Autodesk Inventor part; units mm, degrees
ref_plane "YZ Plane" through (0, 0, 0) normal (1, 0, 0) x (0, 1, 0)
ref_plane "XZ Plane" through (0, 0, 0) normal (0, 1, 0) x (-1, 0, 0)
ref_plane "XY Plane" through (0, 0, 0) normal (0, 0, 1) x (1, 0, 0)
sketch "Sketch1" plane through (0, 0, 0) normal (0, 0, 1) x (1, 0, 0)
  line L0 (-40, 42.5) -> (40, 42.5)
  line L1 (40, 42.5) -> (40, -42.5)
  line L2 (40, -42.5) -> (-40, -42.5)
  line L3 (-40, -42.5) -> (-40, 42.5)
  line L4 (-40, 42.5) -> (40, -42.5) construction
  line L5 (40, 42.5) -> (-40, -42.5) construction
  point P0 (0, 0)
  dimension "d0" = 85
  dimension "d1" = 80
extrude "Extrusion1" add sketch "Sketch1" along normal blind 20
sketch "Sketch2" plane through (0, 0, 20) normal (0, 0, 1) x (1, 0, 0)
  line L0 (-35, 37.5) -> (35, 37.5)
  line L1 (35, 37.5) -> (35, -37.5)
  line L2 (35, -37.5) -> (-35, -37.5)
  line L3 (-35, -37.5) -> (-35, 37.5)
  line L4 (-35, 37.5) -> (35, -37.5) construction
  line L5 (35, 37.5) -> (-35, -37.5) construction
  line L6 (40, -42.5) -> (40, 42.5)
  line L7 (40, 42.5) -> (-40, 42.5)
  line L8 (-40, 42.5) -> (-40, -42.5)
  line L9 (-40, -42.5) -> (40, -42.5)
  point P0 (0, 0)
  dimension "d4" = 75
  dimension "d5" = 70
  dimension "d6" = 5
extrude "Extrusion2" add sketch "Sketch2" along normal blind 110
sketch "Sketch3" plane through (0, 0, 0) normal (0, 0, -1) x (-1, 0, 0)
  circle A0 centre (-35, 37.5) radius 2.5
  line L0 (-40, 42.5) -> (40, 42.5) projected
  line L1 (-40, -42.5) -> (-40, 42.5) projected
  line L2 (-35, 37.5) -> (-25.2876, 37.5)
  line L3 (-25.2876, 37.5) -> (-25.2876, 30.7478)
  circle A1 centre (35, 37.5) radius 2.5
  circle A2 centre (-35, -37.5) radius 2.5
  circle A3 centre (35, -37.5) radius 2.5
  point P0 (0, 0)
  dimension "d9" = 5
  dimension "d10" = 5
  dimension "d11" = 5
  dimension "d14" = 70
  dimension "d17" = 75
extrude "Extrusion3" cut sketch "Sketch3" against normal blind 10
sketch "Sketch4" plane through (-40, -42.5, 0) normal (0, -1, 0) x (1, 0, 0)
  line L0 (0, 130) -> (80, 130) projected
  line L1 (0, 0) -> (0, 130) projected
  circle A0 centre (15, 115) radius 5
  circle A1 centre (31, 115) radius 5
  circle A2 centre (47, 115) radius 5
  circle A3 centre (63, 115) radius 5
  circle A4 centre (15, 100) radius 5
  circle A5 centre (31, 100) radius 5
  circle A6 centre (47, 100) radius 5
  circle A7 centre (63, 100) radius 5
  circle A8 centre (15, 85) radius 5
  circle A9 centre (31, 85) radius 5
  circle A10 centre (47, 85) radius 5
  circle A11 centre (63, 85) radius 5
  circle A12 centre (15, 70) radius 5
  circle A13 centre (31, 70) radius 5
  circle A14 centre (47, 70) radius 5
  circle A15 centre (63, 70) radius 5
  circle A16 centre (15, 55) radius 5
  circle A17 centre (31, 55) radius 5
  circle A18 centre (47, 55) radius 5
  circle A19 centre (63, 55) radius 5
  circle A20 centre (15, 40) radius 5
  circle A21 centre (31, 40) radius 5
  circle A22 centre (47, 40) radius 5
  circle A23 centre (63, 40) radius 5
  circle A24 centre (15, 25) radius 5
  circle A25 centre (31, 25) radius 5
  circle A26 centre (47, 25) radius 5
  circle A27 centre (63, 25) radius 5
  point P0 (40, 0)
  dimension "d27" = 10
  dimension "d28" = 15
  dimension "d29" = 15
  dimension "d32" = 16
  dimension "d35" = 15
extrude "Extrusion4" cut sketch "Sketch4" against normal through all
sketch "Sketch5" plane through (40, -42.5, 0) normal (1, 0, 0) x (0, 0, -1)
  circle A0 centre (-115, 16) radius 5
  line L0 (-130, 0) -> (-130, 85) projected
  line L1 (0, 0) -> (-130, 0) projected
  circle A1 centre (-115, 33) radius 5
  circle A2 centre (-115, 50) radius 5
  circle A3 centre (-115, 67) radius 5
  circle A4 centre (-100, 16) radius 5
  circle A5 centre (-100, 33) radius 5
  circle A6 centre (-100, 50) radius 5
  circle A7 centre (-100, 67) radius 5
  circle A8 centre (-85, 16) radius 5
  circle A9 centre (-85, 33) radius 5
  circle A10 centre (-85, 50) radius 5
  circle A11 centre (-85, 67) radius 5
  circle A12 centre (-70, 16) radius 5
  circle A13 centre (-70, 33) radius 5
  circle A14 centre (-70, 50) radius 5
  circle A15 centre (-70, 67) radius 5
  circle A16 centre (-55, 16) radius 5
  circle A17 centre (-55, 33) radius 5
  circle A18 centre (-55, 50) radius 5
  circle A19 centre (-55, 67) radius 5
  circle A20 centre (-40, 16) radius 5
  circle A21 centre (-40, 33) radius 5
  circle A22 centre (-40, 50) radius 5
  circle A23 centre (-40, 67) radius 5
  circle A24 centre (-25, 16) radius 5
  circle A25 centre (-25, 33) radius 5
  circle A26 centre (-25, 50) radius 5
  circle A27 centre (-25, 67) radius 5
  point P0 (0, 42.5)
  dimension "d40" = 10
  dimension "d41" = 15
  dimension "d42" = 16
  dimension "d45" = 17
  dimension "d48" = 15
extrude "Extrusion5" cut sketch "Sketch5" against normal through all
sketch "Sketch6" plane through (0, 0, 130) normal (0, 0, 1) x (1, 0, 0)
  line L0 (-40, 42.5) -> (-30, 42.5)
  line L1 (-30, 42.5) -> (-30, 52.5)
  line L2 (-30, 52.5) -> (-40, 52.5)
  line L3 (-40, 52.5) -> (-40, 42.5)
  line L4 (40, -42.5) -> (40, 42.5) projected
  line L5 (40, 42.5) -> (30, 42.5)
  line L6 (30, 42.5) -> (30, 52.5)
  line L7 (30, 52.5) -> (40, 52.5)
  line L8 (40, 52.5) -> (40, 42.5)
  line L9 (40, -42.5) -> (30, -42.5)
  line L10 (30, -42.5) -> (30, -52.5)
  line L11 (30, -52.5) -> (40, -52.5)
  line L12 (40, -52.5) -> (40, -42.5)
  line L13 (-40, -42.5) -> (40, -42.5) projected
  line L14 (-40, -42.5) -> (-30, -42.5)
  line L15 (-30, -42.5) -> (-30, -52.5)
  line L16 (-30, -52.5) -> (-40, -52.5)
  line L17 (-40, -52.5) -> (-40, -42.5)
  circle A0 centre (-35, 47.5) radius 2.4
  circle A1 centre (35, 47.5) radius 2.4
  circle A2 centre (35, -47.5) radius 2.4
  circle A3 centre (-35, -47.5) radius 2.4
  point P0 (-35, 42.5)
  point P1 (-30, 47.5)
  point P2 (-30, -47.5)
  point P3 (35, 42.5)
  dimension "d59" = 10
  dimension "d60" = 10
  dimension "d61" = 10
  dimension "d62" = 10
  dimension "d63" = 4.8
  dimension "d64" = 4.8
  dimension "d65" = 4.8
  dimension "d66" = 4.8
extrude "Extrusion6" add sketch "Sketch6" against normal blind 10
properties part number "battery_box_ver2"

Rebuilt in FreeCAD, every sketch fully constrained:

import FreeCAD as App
import Part
import Sketcher


def add_polygon(sketch, points):
    """Adds a closed chain of lines whose ends are joined by coincident constraints."""
    first, n = sketch.GeometryCount, len(points)
    for a, b in zip(points, points[1:] + points[:1]):
        sketch.addGeometry(Part.LineSegment(App.Vector(*a, 0), App.Vector(*b, 0)), False)
    for i in range(n):
        sketch.addConstraint(Sketcher.Constraint("Coincident", first + i, 2, first + (i + 1) % n, 1))

doc = App.newDocument("Part")
body = doc.addObject("PartDesign::Body", "Body")

# Sketch on XY plane
sketch1 = body.newObject("Sketcher::SketchObject", "Sketch")
sketch1.AttachmentSupport = (doc.getObject("XY_Plane"), [""])
sketch1.MapMode = "FlatFace"
add_polygon(sketch1, [(40, 42), (-40, 42), (-40, -42), (40, -42)])  # lines 0-3
sketch1.addConstraint(Sketcher.Constraint("Horizontal", 0))
sketch1.addConstraint(Sketcher.Constraint("Vertical", 1))
sketch1.addConstraint(Sketcher.Constraint("Horizontal", 2))
sketch1.addConstraint(Sketcher.Constraint("Vertical", 3))
sketch1.addConstraint(Sketcher.Constraint("Symmetric", 0, 2, 2, 2, -1, 1))
sketch1.addConstraint(Sketcher.Constraint("DistanceX", 0, 2, 0, 1, 80.0))
sketch1.addConstraint(Sketcher.Constraint("DistanceY", 1, 2, 1, 1, 85.0))
pad1 = body.newObject("PartDesign::Pad", "Pad")
pad1.Profile = sketch1
pad1.Length = 20

# Sketch on XY plane
sketch2 = body.newObject("Sketcher::SketchObject", "Sketch001")
sketch2.AttachmentSupport = (doc.getObject("XY_Plane"), [""])
sketch2.MapMode = "FlatFace"
sketch2.AttachmentOffset = App.Placement(App.Vector(0, 0, 20), App.Rotation())
add_polygon(sketch2, [(-40, -42), (40, -42), (40, 42), (-40, 42)])  # lines 0-3
add_polygon(sketch2, [(-35, -38), (-35, 38), (35, 38), (35, -38)])  # lines 4-7
sketch2.addConstraint(Sketcher.Constraint("Horizontal", 0))
sketch2.addConstraint(Sketcher.Constraint("Vertical", 1))
sketch2.addConstraint(Sketcher.Constraint("Horizontal", 2))
sketch2.addConstraint(Sketcher.Constraint("Vertical", 3))
sketch2.addConstraint(Sketcher.Constraint("Vertical", 4))
sketch2.addConstraint(Sketcher.Constraint("Horizontal", 5))
sketch2.addConstraint(Sketcher.Constraint("Vertical", 6))
sketch2.addConstraint(Sketcher.Constraint("Horizontal", 7))
sketch2.addConstraint(Sketcher.Constraint("Symmetric", 0, 2, 2, 2, -1, 1))
sketch2.addConstraint(Sketcher.Constraint("Symmetric", 4, 2, 6, 2, -1, 1))
sketch2.addConstraint(Sketcher.Constraint("DistanceX", 5, 1, 5, 2, 70.0))
sketch2.addConstraint(Sketcher.Constraint("DistanceY", 4, 1, 4, 2, 75.0))
sketch2.addConstraint(Sketcher.Constraint("DistanceX", 2, 2, 4, 2, 5.0))
sketch2.addConstraint(Sketcher.Constraint("DistanceY", 4, 2, 2, 2, 5.0))
pad2 = body.newObject("PartDesign::Pad", "Pad001")
pad2.Profile = sketch2
pad2.Length = 110

# Sketch on XY plane
sketch3 = body.newObject("Sketcher::SketchObject", "Sketch002")
sketch3.AttachmentSupport = (doc.getObject("XY_Plane"), [""])
sketch3.MapMode = "FlatFace"
sketch3.addGeometry(Part.Circle(App.Vector(35, 37.5, 0), App.Vector(0, 0, 1), 2.5), False)
sketch3.addGeometry(Part.Circle(App.Vector(-35, 37.5, 0), App.Vector(0, 0, 1), 2.5), False)
sketch3.addGeometry(Part.Circle(App.Vector(35, -37.5, 0), App.Vector(0, 0, 1), 2.5), False)
sketch3.addGeometry(Part.Circle(App.Vector(-35, -37.5, 0), App.Vector(0, 0, 1), 2.5), False)
sketch3.addConstraint(Sketcher.Constraint("Equal", 0, 1))
sketch3.addConstraint(Sketcher.Constraint("Equal", 1, 2))
sketch3.addConstraint(Sketcher.Constraint("Equal", 2, 3))
sketch3.addConstraint(Sketcher.Constraint("Symmetric", 1, 3, 2, 3, -1, 1))
sketch3.addConstraint(Sketcher.Constraint("Symmetric", 0, 3, 3, 3, -1, 1))
sketch3.addConstraint(Sketcher.Constraint("Symmetric", 0, 3, 1, 3, -2))
sketch3.addConstraint(Sketcher.Constraint("Diameter", 0, 5.0))
sketch3.addConstraint(Sketcher.Constraint("DistanceX", 1, 3, 0, 3, 70.0))
sketch3.addConstraint(Sketcher.Constraint("DistanceY", 2, 3, 0, 3, 75.0))
pocket1 = body.newObject("PartDesign::Pocket", "Pocket")
pocket1.Profile = sketch3
pocket1.Length = 10
pocket1.Reversed = True

# Sketch on XZ plane
sketch4 = body.newObject("Sketcher::SketchObject", "Sketch003")
sketch4.AttachmentSupport = (doc.getObject("XZ_Plane"), [""])
sketch4.MapMode = "FlatFace"
sketch4.AttachmentOffset = App.Placement(App.Vector(0, 0, 42.5), App.Rotation())
sketch4.addGeometry(Part.Circle(App.Vector(-25, 115, 0), App.Vector(0, 0, 1), 5), False)
sketch4.addGeometry(Part.Circle(App.Vector(-9, 115, 0), App.Vector(0, 0, 1), 5), False)
sketch4.addGeometry(Part.Circle(App.Vector(7, 115, 0), App.Vector(0, 0, 1), 5), False)
sketch4.addGeometry(Part.Circle(App.Vector(23, 115, 0), App.Vector(0, 0, 1), 5), False)
sketch4.addGeometry(Part.Circle(App.Vector(-25, 100, 0), App.Vector(0, 0, 1), 5), False)
sketch4.addGeometry(Part.Circle(App.Vector(-9, 100, 0), App.Vector(0, 0, 1), 5), False)
sketch4.addGeometry(Part.Circle(App.Vector(7, 100, 0), App.Vector(0, 0, 1), 5), False)
sketch4.addGeometry(Part.Circle(App.Vector(23, 100, 0), App.Vector(0, 0, 1), 5), False)
sketch4.addGeometry(Part.Circle(App.Vector(-25, 85, 0), App.Vector(0, 0, 1), 5), False)
sketch4.addGeometry(Part.Circle(App.Vector(-9, 85, 0), App.Vector(0, 0, 1), 5), False)
sketch4.addGeometry(Part.Circle(App.Vector(7, 85, 0), App.Vector(0, 0, 1), 5), False)
sketch4.addGeometry(Part.Circle(App.Vector(23, 85, 0), App.Vector(0, 0, 1), 5), False)
sketch4.addGeometry(Part.Circle(App.Vector(-25, 70, 0), App.Vector(0, 0, 1), 5), False)
sketch4.addGeometry(Part.Circle(App.Vector(-9, 70, 0), App.Vector(0, 0, 1), 5), False)
sketch4.addGeometry(Part.Circle(App.Vector(7, 70, 0), App.Vector(0, 0, 1), 5), False)
sketch4.addGeometry(Part.Circle(App.Vector(23, 70, 0), App.Vector(0, 0, 1), 5), False)
sketch4.addGeometry(Part.Circle(App.Vector(-25, 55, 0), App.Vector(0, 0, 1), 5), False)
sketch4.addGeometry(Part.Circle(App.Vector(-9, 55, 0), App.Vector(0, 0, 1), 5), False)
sketch4.addGeometry(Part.Circle(App.Vector(7, 55, 0), App.Vector(0, 0, 1), 5), False)
sketch4.addGeometry(Part.Circle(App.Vector(23, 55, 0), App.Vector(0, 0, 1), 5), False)
sketch4.addGeometry(Part.Circle(App.Vector(-25, 40, 0), App.Vector(0, 0, 1), 5), False)
sketch4.addGeometry(Part.Circle(App.Vector(-9, 40, 0), App.Vector(0, 0, 1), 5), False)
sketch4.addGeometry(Part.Circle(App.Vector(7, 40, 0), App.Vector(0, 0, 1), 5), False)
sketch4.addGeometry(Part.Circle(App.Vector(23, 40, 0), App.Vector(0, 0, 1), 5), False)
sketch4.addGeometry(Part.Circle(App.Vector(-25, 25, 0), App.Vector(0, 0, 1), 5), False)
sketch4.addGeometry(Part.Circle(App.Vector(-9, 25, 0), App.Vector(0, 0, 1), 5), False)
sketch4.addGeometry(Part.Circle(App.Vector(7, 25, 0), App.Vector(0, 0, 1), 5), False)
sketch4.addGeometry(Part.Circle(App.Vector(23, 25, 0), App.Vector(0, 0, 1), 5), False)
sketch4.addConstraint(Sketcher.Constraint("Equal", 0, 1))
sketch4.addConstraint(Sketcher.Constraint("Equal", 1, 2))
sketch4.addConstraint(Sketcher.Constraint("Equal", 2, 3))
sketch4.addConstraint(Sketcher.Constraint("Equal", 3, 4))
sketch4.addConstraint(Sketcher.Constraint("Equal", 4, 5))
sketch4.addConstraint(Sketcher.Constraint("Equal", 5, 6))
sketch4.addConstraint(Sketcher.Constraint("Equal", 6, 7))
sketch4.addConstraint(Sketcher.Constraint("Equal", 7, 8))
sketch4.addConstraint(Sketcher.Constraint("Equal", 8, 9))
sketch4.addConstraint(Sketcher.Constraint("Equal", 9, 10))
sketch4.addConstraint(Sketcher.Constraint("Equal", 10, 11))
sketch4.addConstraint(Sketcher.Constraint("Equal", 11, 12))
sketch4.addConstraint(Sketcher.Constraint("Equal", 12, 13))
sketch4.addConstraint(Sketcher.Constraint("Equal", 13, 14))
sketch4.addConstraint(Sketcher.Constraint("Equal", 14, 15))
sketch4.addConstraint(Sketcher.Constraint("Equal", 15, 16))
sketch4.addConstraint(Sketcher.Constraint("Equal", 16, 17))
sketch4.addConstraint(Sketcher.Constraint("Equal", 17, 18))
sketch4.addConstraint(Sketcher.Constraint("Equal", 18, 19))
sketch4.addConstraint(Sketcher.Constraint("Equal", 19, 20))
sketch4.addConstraint(Sketcher.Constraint("Equal", 20, 21))
sketch4.addConstraint(Sketcher.Constraint("Equal", 21, 22))
sketch4.addConstraint(Sketcher.Constraint("Equal", 22, 23))
sketch4.addConstraint(Sketcher.Constraint("Equal", 23, 24))
sketch4.addConstraint(Sketcher.Constraint("Equal", 24, 25))
sketch4.addConstraint(Sketcher.Constraint("Equal", 25, 26))
sketch4.addConstraint(Sketcher.Constraint("Equal", 26, 27))
sketch4.addConstraint(Sketcher.Constraint("Horizontal", 0, 3, 1, 3))
sketch4.addConstraint(Sketcher.Constraint("Horizontal", 1, 3, 2, 3))
sketch4.addConstraint(Sketcher.Constraint("Horizontal", 2, 3, 3, 3))
sketch4.addConstraint(Sketcher.Constraint("Horizontal", 4, 3, 5, 3))
sketch4.addConstraint(Sketcher.Constraint("Horizontal", 5, 3, 6, 3))
sketch4.addConstraint(Sketcher.Constraint("Horizontal", 6, 3, 7, 3))
sketch4.addConstraint(Sketcher.Constraint("Horizontal", 8, 3, 9, 3))
sketch4.addConstraint(Sketcher.Constraint("Horizontal", 9, 3, 10, 3))
sketch4.addConstraint(Sketcher.Constraint("Horizontal", 10, 3, 11, 3))
sketch4.addConstraint(Sketcher.Constraint("Horizontal", 12, 3, 13, 3))
sketch4.addConstraint(Sketcher.Constraint("Horizontal", 13, 3, 14, 3))
sketch4.addConstraint(Sketcher.Constraint("Horizontal", 14, 3, 15, 3))
sketch4.addConstraint(Sketcher.Constraint("Horizontal", 16, 3, 17, 3))
sketch4.addConstraint(Sketcher.Constraint("Horizontal", 17, 3, 18, 3))
sketch4.addConstraint(Sketcher.Constraint("Horizontal", 18, 3, 19, 3))
sketch4.addConstraint(Sketcher.Constraint("Horizontal", 20, 3, 21, 3))
sketch4.addConstraint(Sketcher.Constraint("Horizontal", 21, 3, 22, 3))
sketch4.addConstraint(Sketcher.Constraint("Horizontal", 22, 3, 23, 3))
sketch4.addConstraint(Sketcher.Constraint("Horizontal", 24, 3, 25, 3))
sketch4.addConstraint(Sketcher.Constraint("Horizontal", 25, 3, 26, 3))
sketch4.addConstraint(Sketcher.Constraint("Horizontal", 26, 3, 27, 3))
sketch4.addConstraint(Sketcher.Constraint("Vertical", 0, 3, 4, 3))
sketch4.addConstraint(Sketcher.Constraint("Vertical", 1, 3, 5, 3))
sketch4.addConstraint(Sketcher.Constraint("Vertical", 2, 3, 6, 3))
sketch4.addConstraint(Sketcher.Constraint("Vertical", 3, 3, 7, 3))
sketch4.addConstraint(Sketcher.Constraint("Vertical", 4, 3, 8, 3))
sketch4.addConstraint(Sketcher.Constraint("Vertical", 5, 3, 9, 3))
sketch4.addConstraint(Sketcher.Constraint("Vertical", 6, 3, 10, 3))
sketch4.addConstraint(Sketcher.Constraint("Vertical", 7, 3, 11, 3))
sketch4.addConstraint(Sketcher.Constraint("Vertical", 8, 3, 12, 3))
sketch4.addConstraint(Sketcher.Constraint("Vertical", 9, 3, 13, 3))
sketch4.addConstraint(Sketcher.Constraint("Vertical", 10, 3, 14, 3))
sketch4.addConstraint(Sketcher.Constraint("Vertical", 11, 3, 15, 3))
sketch4.addConstraint(Sketcher.Constraint("Vertical", 12, 3, 16, 3))
sketch4.addConstraint(Sketcher.Constraint("Vertical", 13, 3, 17, 3))
sketch4.addConstraint(Sketcher.Constraint("Vertical", 14, 3, 18, 3))
sketch4.addConstraint(Sketcher.Constraint("Vertical", 15, 3, 19, 3))
sketch4.addConstraint(Sketcher.Constraint("Vertical", 16, 3, 20, 3))
sketch4.addConstraint(Sketcher.Constraint("Vertical", 17, 3, 21, 3))
sketch4.addConstraint(Sketcher.Constraint("Vertical", 18, 3, 22, 3))
sketch4.addConstraint(Sketcher.Constraint("Vertical", 19, 3, 23, 3))
sketch4.addConstraint(Sketcher.Constraint("Vertical", 20, 3, 24, 3))
sketch4.addConstraint(Sketcher.Constraint("Vertical", 21, 3, 25, 3))
sketch4.addConstraint(Sketcher.Constraint("Vertical", 22, 3, 26, 3))
sketch4.addConstraint(Sketcher.Constraint("Vertical", 23, 3, 27, 3))
sketch4.addConstraint(Sketcher.Constraint("Diameter", 0, 10.0))
sketch4.addConstraint(Sketcher.Constraint("DistanceX", 0, 3, 1, 3, 16.0))
sketch4.addConstraint(Sketcher.Constraint("DistanceX", 1, 3, 2, 3, 16.0))
sketch4.addConstraint(Sketcher.Constraint("DistanceX", 2, 3, 3, 3, 16.0))
sketch4.addConstraint(Sketcher.Constraint("DistanceY", 4, 3, 0, 3, 15.0))
sketch4.addConstraint(Sketcher.Constraint("DistanceY", 8, 3, 4, 3, 15.0))
sketch4.addConstraint(Sketcher.Constraint("DistanceY", 12, 3, 8, 3, 15.0))
sketch4.addConstraint(Sketcher.Constraint("DistanceY", 16, 3, 12, 3, 15.0))
sketch4.addConstraint(Sketcher.Constraint("DistanceY", 20, 3, 16, 3, 15.0))
sketch4.addConstraint(Sketcher.Constraint("DistanceY", 24, 3, 20, 3, 15.0))
sketch4.addConstraint(Sketcher.Constraint("DistanceX", 0, 3, -1, 1, 25.0))
sketch4.addConstraint(Sketcher.Constraint("DistanceY", -1, 1, 0, 3, 115.0))
pocket2 = body.newObject("PartDesign::Pocket", "Pocket001")
pocket2.Profile = sketch4
pocket2.Type = "ThroughAll"

# Sketch on YZ plane
sketch5 = body.newObject("Sketcher::SketchObject", "Sketch004")
sketch5.AttachmentSupport = (doc.getObject("YZ_Plane"), [""])
sketch5.MapMode = "FlatFace"
sketch5.AttachmentOffset = App.Placement(App.Vector(0, 0, 40), App.Rotation())
sketch5.addGeometry(Part.Circle(App.Vector(-26, 115, 0), App.Vector(0, 0, 1), 5), False)
sketch5.addGeometry(Part.Circle(App.Vector(-10, 115, 0), App.Vector(0, 0, 1), 5), False)
sketch5.addGeometry(Part.Circle(App.Vector(8, 115, 0), App.Vector(0, 0, 1), 5), False)
sketch5.addGeometry(Part.Circle(App.Vector(24, 115, 0), App.Vector(0, 0, 1), 5), False)
sketch5.addGeometry(Part.Circle(App.Vector(-26, 100, 0), App.Vector(0, 0, 1), 5), False)
sketch5.addGeometry(Part.Circle(App.Vector(-10, 100, 0), App.Vector(0, 0, 1), 5), False)
sketch5.addGeometry(Part.Circle(App.Vector(8, 100, 0), App.Vector(0, 0, 1), 5), False)
sketch5.addGeometry(Part.Circle(App.Vector(24, 100, 0), App.Vector(0, 0, 1), 5), False)
sketch5.addGeometry(Part.Circle(App.Vector(-26, 85, 0), App.Vector(0, 0, 1), 5), False)
sketch5.addGeometry(Part.Circle(App.Vector(-10, 85, 0), App.Vector(0, 0, 1), 5), False)
sketch5.addGeometry(Part.Circle(App.Vector(8, 85, 0), App.Vector(0, 0, 1), 5), False)
sketch5.addGeometry(Part.Circle(App.Vector(24, 85, 0), App.Vector(0, 0, 1), 5), False)
sketch5.addGeometry(Part.Circle(App.Vector(-26, 70, 0), App.Vector(0, 0, 1), 5), False)
sketch5.addGeometry(Part.Circle(App.Vector(-10, 70, 0), App.Vector(0, 0, 1), 5), False)
sketch5.addGeometry(Part.Circle(App.Vector(8, 70, 0), App.Vector(0, 0, 1), 5), False)
sketch5.addGeometry(Part.Circle(App.Vector(24, 70, 0), App.Vector(0, 0, 1), 5), False)
sketch5.addGeometry(Part.Circle(App.Vector(-26, 55, 0), App.Vector(0, 0, 1), 5), False)
sketch5.addGeometry(Part.Circle(App.Vector(-10, 55, 0), App.Vector(0, 0, 1), 5), False)
sketch5.addGeometry(Part.Circle(App.Vector(8, 55, 0), App.Vector(0, 0, 1), 5), False)
sketch5.addGeometry(Part.Circle(App.Vector(24, 55, 0), App.Vector(0, 0, 1), 5), False)
sketch5.addGeometry(Part.Circle(App.Vector(-26, 40, 0), App.Vector(0, 0, 1), 5), False)
sketch5.addGeometry(Part.Circle(App.Vector(-10, 40, 0), App.Vector(0, 0, 1), 5), False)
sketch5.addGeometry(Part.Circle(App.Vector(8, 40, 0), App.Vector(0, 0, 1), 5), False)
sketch5.addGeometry(Part.Circle(App.Vector(24, 40, 0), App.Vector(0, 0, 1), 5), False)
sketch5.addGeometry(Part.Circle(App.Vector(-26, 25, 0), App.Vector(0, 0, 1), 5), False)
sketch5.addGeometry(Part.Circle(App.Vector(-10, 25, 0), App.Vector(0, 0, 1), 5), False)
sketch5.addGeometry(Part.Circle(App.Vector(8, 25, 0), App.Vector(0, 0, 1), 5), False)
sketch5.addGeometry(Part.Circle(App.Vector(24, 25, 0), App.Vector(0, 0, 1), 5), False)
sketch5.addConstraint(Sketcher.Constraint("Equal", 0, 1))
sketch5.addConstraint(Sketcher.Constraint("Equal", 1, 2))
sketch5.addConstraint(Sketcher.Constraint("Equal", 2, 3))
sketch5.addConstraint(Sketcher.Constraint("Equal", 3, 4))
sketch5.addConstraint(Sketcher.Constraint("Equal", 4, 5))
sketch5.addConstraint(Sketcher.Constraint("Equal", 5, 6))
sketch5.addConstraint(Sketcher.Constraint("Equal", 6, 7))
sketch5.addConstraint(Sketcher.Constraint("Equal", 7, 8))
sketch5.addConstraint(Sketcher.Constraint("Equal", 8, 9))
sketch5.addConstraint(Sketcher.Constraint("Equal", 9, 10))
sketch5.addConstraint(Sketcher.Constraint("Equal", 10, 11))
sketch5.addConstraint(Sketcher.Constraint("Equal", 11, 12))
sketch5.addConstraint(Sketcher.Constraint("Equal", 12, 13))
sketch5.addConstraint(Sketcher.Constraint("Equal", 13, 14))
sketch5.addConstraint(Sketcher.Constraint("Equal", 14, 15))
sketch5.addConstraint(Sketcher.Constraint("Equal", 15, 16))
sketch5.addConstraint(Sketcher.Constraint("Equal", 16, 17))
sketch5.addConstraint(Sketcher.Constraint("Equal", 17, 18))
sketch5.addConstraint(Sketcher.Constraint("Equal", 18, 19))
sketch5.addConstraint(Sketcher.Constraint("Equal", 19, 20))
sketch5.addConstraint(Sketcher.Constraint("Equal", 20, 21))
sketch5.addConstraint(Sketcher.Constraint("Equal", 21, 22))
sketch5.addConstraint(Sketcher.Constraint("Equal", 22, 23))
sketch5.addConstraint(Sketcher.Constraint("Equal", 23, 24))
sketch5.addConstraint(Sketcher.Constraint("Equal", 24, 25))
sketch5.addConstraint(Sketcher.Constraint("Equal", 25, 26))
sketch5.addConstraint(Sketcher.Constraint("Equal", 26, 27))
sketch5.addConstraint(Sketcher.Constraint("Horizontal", 0, 3, 1, 3))
sketch5.addConstraint(Sketcher.Constraint("Horizontal", 1, 3, 2, 3))
sketch5.addConstraint(Sketcher.Constraint("Horizontal", 2, 3, 3, 3))
sketch5.addConstraint(Sketcher.Constraint("Horizontal", 4, 3, 5, 3))
sketch5.addConstraint(Sketcher.Constraint("Horizontal", 5, 3, 6, 3))
sketch5.addConstraint(Sketcher.Constraint("Horizontal", 6, 3, 7, 3))
sketch5.addConstraint(Sketcher.Constraint("Horizontal", 8, 3, 9, 3))
sketch5.addConstraint(Sketcher.Constraint("Horizontal", 9, 3, 10, 3))
sketch5.addConstraint(Sketcher.Constraint("Horizontal", 10, 3, 11, 3))
sketch5.addConstraint(Sketcher.Constraint("Horizontal", 12, 3, 13, 3))
sketch5.addConstraint(Sketcher.Constraint("Horizontal", 13, 3, 14, 3))
sketch5.addConstraint(Sketcher.Constraint("Horizontal", 14, 3, 15, 3))
sketch5.addConstraint(Sketcher.Constraint("Horizontal", 16, 3, 17, 3))
sketch5.addConstraint(Sketcher.Constraint("Horizontal", 17, 3, 18, 3))
sketch5.addConstraint(Sketcher.Constraint("Horizontal", 18, 3, 19, 3))
sketch5.addConstraint(Sketcher.Constraint("Horizontal", 20, 3, 21, 3))
sketch5.addConstraint(Sketcher.Constraint("Horizontal", 21, 3, 22, 3))
sketch5.addConstraint(Sketcher.Constraint("Horizontal", 22, 3, 23, 3))
sketch5.addConstraint(Sketcher.Constraint("Horizontal", 24, 3, 25, 3))
sketch5.addConstraint(Sketcher.Constraint("Horizontal", 25, 3, 26, 3))
sketch5.addConstraint(Sketcher.Constraint("Horizontal", 26, 3, 27, 3))
sketch5.addConstraint(Sketcher.Constraint("Vertical", 0, 3, 4, 3))
sketch5.addConstraint(Sketcher.Constraint("Vertical", 1, 3, 5, 3))
sketch5.addConstraint(Sketcher.Constraint("Vertical", 2, 3, 6, 3))
sketch5.addConstraint(Sketcher.Constraint("Vertical", 3, 3, 7, 3))
sketch5.addConstraint(Sketcher.Constraint("Vertical", 4, 3, 8, 3))
sketch5.addConstraint(Sketcher.Constraint("Vertical", 5, 3, 9, 3))
sketch5.addConstraint(Sketcher.Constraint("Vertical", 6, 3, 10, 3))
sketch5.addConstraint(Sketcher.Constraint("Vertical", 7, 3, 11, 3))
sketch5.addConstraint(Sketcher.Constraint("Vertical", 8, 3, 12, 3))
sketch5.addConstraint(Sketcher.Constraint("Vertical", 9, 3, 13, 3))
sketch5.addConstraint(Sketcher.Constraint("Vertical", 10, 3, 14, 3))
sketch5.addConstraint(Sketcher.Constraint("Vertical", 11, 3, 15, 3))
sketch5.addConstraint(Sketcher.Constraint("Vertical", 12, 3, 16, 3))
sketch5.addConstraint(Sketcher.Constraint("Vertical", 13, 3, 17, 3))
sketch5.addConstraint(Sketcher.Constraint("Vertical", 14, 3, 18, 3))
sketch5.addConstraint(Sketcher.Constraint("Vertical", 15, 3, 19, 3))
sketch5.addConstraint(Sketcher.Constraint("Vertical", 16, 3, 20, 3))
sketch5.addConstraint(Sketcher.Constraint("Vertical", 17, 3, 21, 3))
sketch5.addConstraint(Sketcher.Constraint("Vertical", 18, 3, 22, 3))
sketch5.addConstraint(Sketcher.Constraint("Vertical", 19, 3, 23, 3))
sketch5.addConstraint(Sketcher.Constraint("Vertical", 20, 3, 24, 3))
sketch5.addConstraint(Sketcher.Constraint("Vertical", 21, 3, 25, 3))
sketch5.addConstraint(Sketcher.Constraint("Vertical", 22, 3, 26, 3))
sketch5.addConstraint(Sketcher.Constraint("Vertical", 23, 3, 27, 3))
sketch5.addConstraint(Sketcher.Constraint("Diameter", 0, 10.0))
sketch5.addConstraint(Sketcher.Constraint("DistanceX", 0, 3, 1, 3, 17.0))
sketch5.addConstraint(Sketcher.Constraint("DistanceX", 1, 3, 2, 3, 17.0))
sketch5.addConstraint(Sketcher.Constraint("DistanceX", 2, 3, 3, 3, 17.0))
sketch5.addConstraint(Sketcher.Constraint("DistanceY", 4, 3, 0, 3, 15.0))
sketch5.addConstraint(Sketcher.Constraint("DistanceY", 8, 3, 4, 3, 15.0))
sketch5.addConstraint(Sketcher.Constraint("DistanceY", 12, 3, 8, 3, 15.0))
sketch5.addConstraint(Sketcher.Constraint("DistanceY", 16, 3, 12, 3, 15.0))
sketch5.addConstraint(Sketcher.Constraint("DistanceY", 20, 3, 16, 3, 15.0))
sketch5.addConstraint(Sketcher.Constraint("DistanceY", 24, 3, 20, 3, 15.0))
sketch5.addConstraint(Sketcher.Constraint("DistanceY", -1, 1, 0, 3, 115.0))
sketch5.addConstraint(Sketcher.Constraint("DistanceX", 0, 3, -1, 1, 26.5))
pocket3 = body.newObject("PartDesign::Pocket", "Pocket002")
pocket3.Profile = sketch5
pocket3.Type = "ThroughAll"

# Sketch on XY plane
sketch6 = body.newObject("Sketcher::SketchObject", "Sketch005")
sketch6.AttachmentSupport = (doc.getObject("XY_Plane"), [""])
sketch6.MapMode = "FlatFace"
sketch6.AttachmentOffset = App.Placement(App.Vector(0, 0, 130), App.Rotation())
add_polygon(sketch6, [(-40, 52.5), (-40, 42.5), (-30, 42.5), (-30, 52.5)])  # lines 0-3
sketch6.addGeometry(Part.Circle(App.Vector(-35, 47.5, 0), App.Vector(0, 0, 1), 2.4), False)  # 4
add_polygon(sketch6, [(30, 42.5), (40, 42.5), (40, 52.5), (30, 52.5)])  # lines 5-8
sketch6.addGeometry(Part.Circle(App.Vector(35, 47.5, 0), App.Vector(0, 0, 1), 2.4), False)  # 9
add_polygon(sketch6, [(40, -52.5), (40, -42.5), (30, -42.5), (30, -52.5)])  # lines 10-13
sketch6.addGeometry(Part.Circle(App.Vector(35, -47.5, 0), App.Vector(0, 0, 1), 2.4), False)  # 14
add_polygon(sketch6, [(-30, -52.5), (-30, -42.5), (-40, -42.5), (-40, -52.5)])  # lines 15-18
sketch6.addGeometry(Part.Circle(App.Vector(-35, -47.5, 0), App.Vector(0, 0, 1), 2.4), False)  # 19
sketch6.addConstraint(Sketcher.Constraint("Vertical", 0))
sketch6.addConstraint(Sketcher.Constraint("Horizontal", 1))
sketch6.addConstraint(Sketcher.Constraint("Vertical", 2))
sketch6.addConstraint(Sketcher.Constraint("Horizontal", 3))
sketch6.addConstraint(Sketcher.Constraint("Horizontal", 5))
sketch6.addConstraint(Sketcher.Constraint("Vertical", 6))
sketch6.addConstraint(Sketcher.Constraint("Horizontal", 7))
sketch6.addConstraint(Sketcher.Constraint("Vertical", 8))
sketch6.addConstraint(Sketcher.Constraint("Vertical", 10))
sketch6.addConstraint(Sketcher.Constraint("Horizontal", 11))
sketch6.addConstraint(Sketcher.Constraint("Vertical", 12))
sketch6.addConstraint(Sketcher.Constraint("Horizontal", 13))
sketch6.addConstraint(Sketcher.Constraint("Vertical", 15))
sketch6.addConstraint(Sketcher.Constraint("Horizontal", 16))
sketch6.addConstraint(Sketcher.Constraint("Vertical", 17))
sketch6.addConstraint(Sketcher.Constraint("Horizontal", 18))
sketch6.addConstraint(Sketcher.Constraint("Equal", 4, 9))
sketch6.addConstraint(Sketcher.Constraint("Equal", 9, 14))
sketch6.addConstraint(Sketcher.Constraint("Equal", 14, 19))
sketch6.addConstraint(Sketcher.Constraint("Symmetric", 4, 3, 14, 3, -1, 1))
sketch6.addConstraint(Sketcher.Constraint("Symmetric", 9, 3, 19, 3, -1, 1))
sketch6.addConstraint(Sketcher.Constraint("Symmetric", 0, 2, 10, 2, -1, 1))
sketch6.addConstraint(Sketcher.Constraint("Symmetric", 2, 2, 12, 2, -1, 1))
sketch6.addConstraint(Sketcher.Constraint("Symmetric", 8, 2, 15, 2, -1, 1))
sketch6.addConstraint(Sketcher.Constraint("Symmetric", 6, 2, 17, 2, -1, 1))
sketch6.addConstraint(Sketcher.Constraint("Symmetric", 4, 3, 9, 3, -2))
sketch6.addConstraint(Sketcher.Constraint("Symmetric", 0, 2, 5, 2, -2))
sketch6.addConstraint(Sketcher.Constraint("Symmetric", 2, 2, 7, 2, -2))
sketch6.addConstraint(Sketcher.Constraint("Equal", 18, 0))
sketch6.addConstraint(Sketcher.Constraint("Diameter", 4, 4.8))
sketch6.addConstraint(Sketcher.Constraint("DistanceX", 1, 1, 1, 2, 10.0))
sketch6.addConstraint(Sketcher.Constraint("DistanceX", 4, 3, -1, 1, 35.0))
sketch6.addConstraint(Sketcher.Constraint("DistanceX", 0, 2, -1, 1, 40.0))
sketch6.addConstraint(Sketcher.Constraint("DistanceY", 14, 3, 9, 3, 95.0))
sketch6.addConstraint(Sketcher.Constraint("DistanceY", 0, 2, 4, 3, 5.0))
pad3 = body.newObject("PartDesign::Pad", "Pad002")
pad3.Profile = sketch6
pad3.Length = 10
pad3.Reversed = True

doc.recompute()
